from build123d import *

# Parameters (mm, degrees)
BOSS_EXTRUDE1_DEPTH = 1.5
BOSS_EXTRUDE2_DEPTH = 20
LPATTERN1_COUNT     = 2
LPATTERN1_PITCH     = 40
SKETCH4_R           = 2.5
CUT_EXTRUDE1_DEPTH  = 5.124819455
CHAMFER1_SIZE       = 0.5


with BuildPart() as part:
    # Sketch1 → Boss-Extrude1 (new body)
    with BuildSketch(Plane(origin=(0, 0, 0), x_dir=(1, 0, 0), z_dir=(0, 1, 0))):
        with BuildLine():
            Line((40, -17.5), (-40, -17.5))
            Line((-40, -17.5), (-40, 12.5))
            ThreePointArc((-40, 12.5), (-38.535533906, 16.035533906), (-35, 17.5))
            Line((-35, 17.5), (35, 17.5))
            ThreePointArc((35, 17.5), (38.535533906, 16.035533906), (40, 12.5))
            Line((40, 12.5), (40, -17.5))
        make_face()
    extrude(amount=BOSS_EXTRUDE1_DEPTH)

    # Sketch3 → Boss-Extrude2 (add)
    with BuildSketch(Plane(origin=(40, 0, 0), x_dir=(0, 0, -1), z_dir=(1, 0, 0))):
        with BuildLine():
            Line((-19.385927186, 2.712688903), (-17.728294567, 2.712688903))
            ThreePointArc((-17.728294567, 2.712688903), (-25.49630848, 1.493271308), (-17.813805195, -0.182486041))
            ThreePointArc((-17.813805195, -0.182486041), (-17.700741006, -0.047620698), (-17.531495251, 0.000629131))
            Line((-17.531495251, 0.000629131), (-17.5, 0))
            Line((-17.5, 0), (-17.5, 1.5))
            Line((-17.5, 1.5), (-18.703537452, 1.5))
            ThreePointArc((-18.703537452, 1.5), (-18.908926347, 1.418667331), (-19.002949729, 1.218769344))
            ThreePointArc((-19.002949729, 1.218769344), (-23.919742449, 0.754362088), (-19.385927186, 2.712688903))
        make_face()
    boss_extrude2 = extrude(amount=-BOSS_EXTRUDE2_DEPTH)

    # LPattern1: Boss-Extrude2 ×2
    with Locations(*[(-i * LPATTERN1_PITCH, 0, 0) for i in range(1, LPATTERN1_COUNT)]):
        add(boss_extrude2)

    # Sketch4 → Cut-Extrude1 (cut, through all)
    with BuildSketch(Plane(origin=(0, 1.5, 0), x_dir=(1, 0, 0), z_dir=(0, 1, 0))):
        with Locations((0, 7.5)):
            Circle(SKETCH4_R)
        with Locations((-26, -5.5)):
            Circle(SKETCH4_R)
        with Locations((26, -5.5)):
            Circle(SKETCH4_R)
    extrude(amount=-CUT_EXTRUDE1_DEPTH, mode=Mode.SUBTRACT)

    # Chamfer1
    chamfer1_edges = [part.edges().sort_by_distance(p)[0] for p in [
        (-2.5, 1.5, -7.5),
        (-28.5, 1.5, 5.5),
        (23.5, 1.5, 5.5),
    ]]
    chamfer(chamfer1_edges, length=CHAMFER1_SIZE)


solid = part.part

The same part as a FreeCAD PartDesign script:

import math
import FreeCAD as App
import Part
import Sketcher
Q = App.Units.Quantity


def edges_at(feature, points):
    """Names of the edges that pass closest to the given points."""
    edges = feature.Shape.Edges
    near = lambda p: min(range(len(edges)), key=lambda i: edges[i].distToShape(Part.Vertex(*p))[0])
    return sorted({f"Edge{near(p) + 1}" for p in points})

doc = App.newDocument("Part")
body = doc.addObject("PartDesign::Body", "Body")

# Sketch on XZ plane
sketch1 = doc.addObject("Sketcher::SketchObject", "Sketch")
body.addObject(sketch1)
sketch1.AttachmentSupport = (doc.XZ_Plane, [""])
sketch1.MapMode = "FlatFace"
sketch1.addGeometry([
    Part.LineSegment(App.Vector(-40, 18, 0), App.Vector(40, 18, 0)),  # 0
    Part.LineSegment(App.Vector(40, 18, 0), App.Vector(40, -12, 0)),  # 1
    Part.ArcOfCircle(Part.Circle(App.Vector(35, -12, 0), App.Vector(0, 0, 1), 5), math.radians(-90), math.radians(0)),  # 2
    Part.LineSegment(App.Vector(35, -18, 0), App.Vector(-35, -18, 0)),  # 3
    Part.ArcOfCircle(Part.Circle(App.Vector(-35, -12, 0), App.Vector(0, 0, 1), 5), math.radians(180), math.radians(270)),  # 4
    Part.LineSegment(App.Vector(-40, -12, 0), App.Vector(-40, 18, 0)),  # 5
], False)
sketch1.addConstraint([
    Sketcher.Constraint("Coincident", 0, 2, 1, 1),
    Sketcher.Constraint("Tangent", 1, 2, 2, 2),
    Sketcher.Constraint("Tangent", 2, 1, 3, 1),
    Sketcher.Constraint("Tangent", 3, 2, 4, 2),
    Sketcher.Constraint("Tangent", 4, 1, 5, 1),
    Sketcher.Constraint("Coincident", 5, 2, 0, 1),
    Sketcher.Constraint("Horizontal", 0),
    Sketcher.Constraint("Vertical", 1),
    Sketcher.Constraint("Horizontal", 3),
    Sketcher.Constraint("Vertical", 5),
    Sketcher.Constraint("Equal", 2, 4),
    Sketcher.Constraint("Radius", 2, Q("5 mm")),
    Sketcher.Constraint("DistanceX", 0, 1, 0, 2, Q("80 mm")),
    Sketcher.Constraint("DistanceY", 1, 2, 1, 1, Q("30 mm")),
    Sketcher.Constraint("DistanceX", -1, 1, 2, 3, Q("35 mm")),
    Sketcher.Constraint("DistanceY", 2, 3, -1, 1, Q("12.5 mm")),
])
pad1 = doc.addObject("PartDesign::Pad", "Pad")
body.addObject(pad1)
pad1.Profile = sketch1
pad1.Length = 1.5
pad1.Reversed = True

# Sketch on YZ plane
sketch2 = doc.addObject("Sketcher::SketchObject", "Sketch001")
body.addObject(sketch2)
sketch2.AttachmentSupport = (doc.YZ_Plane, [""])
sketch2.MapMode = "FlatFace"
sketch2.AttachmentOffset = App.Placement(App.Vector(0, 0, 40), App.Rotation())
sketch2.addGeometry([
    Part.LineSegment(App.Vector(2.713, 19.386, 0), App.Vector(2.713, 17.728, 0)),  # 0
    Part.ArcOfCircle(Part.Circle(App.Vector(1.375, 21.498, 0), App.Vector(0, 0, 1), 4), math.radians(-70), math.radians(247)),  # 1
    Part.ArcOfCircle(Part.Circle(App.Vector(-0.299, 17.537, 0), App.Vector(0, 0, 1), 0.3), math.radians(-1), math.radians(67)),  # 2
    Part.LineSegment(App.Vector(0.001, 17.531, 0), App.Vector(0, 17.5, 0)),  # 3
    Part.LineSegment(App.Vector(0, 17.5, 0), App.Vector(1.5, 17.5, 0)),  # 4
    Part.LineSegment(App.Vector(1.5, 17.5, 0), App.Vector(1.5, 18.704, 0)),  # 5
    Part.ArcOfCircle(Part.Circle(App.Vector(1.2, 18.704, 0), App.Vector(0, 0, 1), 0.3), math.radians(0), math.radians(86)),  # 6
    Part.ArcOfCircle(Part.Circle(App.Vector(1.375, 21.498, 0), App.Vector(0, 0, 1), 2.5), math.radians(-58), math.radians(266)),  # 7
], False)
sketch2.addConstraint([
    Sketcher.Constraint("Coincident", 0, 2, 1, 1),
    Sketcher.Constraint("Tangent", 1, 2, 2, 2),
    Sketcher.Constraint("Tangent", 2, 1, 3, 1),
    Sketcher.Constraint("Coincident", 3, 2, 4, 1),
    Sketcher.Constraint("Coincident", 4, 2, 5, 1),
    Sketcher.Constraint("Tangent", 5, 2, 6, 1),
    Sketcher.Constraint("Tangent", 6, 2, 7, 2),
    Sketcher.Constraint("Coincident", 7, 1, 0, 1),
    Sketcher.Constraint("Vertical", 0),
    Sketcher.Constraint("Horizontal", 4),
    Sketcher.Constraint("Vertical", 5),
    Sketcher.Constraint("Coincident", 7, 3, 1, 3),
    Sketcher.Constraint("Equal", 2, 6),
    Sketcher.Constraint("PointOnObject", 3, 2, -2),
    Sketcher.Constraint("Radius", 1, Q("4 mm")),
    Sketcher.Constraint("Radius", 2, Q("0.3 mm")),
    Sketcher.Constraint("Radius", 7, Q("2.5 mm")),
    Sketcher.Constraint("DistanceX", 4, 1, 4, 2, Q("1.5 mm")),
    Sketcher.Constraint("DistanceY", -1, 1, 3, 2, Q("17.5 mm")),
    Sketcher.Constraint("DistanceX", 2, 3, 0, 2, Q("3.012 mm")),
    Sketcher.Constraint("Distance", 3, Q("0.031502 mm")),
    Sketcher.Constraint("DistanceY", 2, 1, 0, 2, Q("0.196799 mm")),
    Sketcher.Constraint("DistanceY", 0, 2, 0, 1, Q("1.657633 mm")),
])
pad2 = doc.addObject("PartDesign::Pad", "Pad001")
body.addObject(pad2)
pad2.Profile = sketch2
pad2.Length = 20
pad2.Reversed = True
doc.recompute()

linearpattern = doc.addObject("PartDesign::LinearPattern", "LinearPattern")
body.addObject(linearpattern)
linearpattern.Originals = [pad2]
linearpattern.Direction = (doc.X_Axis, [""])
linearpattern.Mode = "offset"
linearpattern.Offset = 40
linearpattern.Occurrences = 2
linearpattern.Reversed = True
body.Tip = linearpattern

# Sketch on XZ plane
sketch3 = doc.addObject("Sketcher::SketchObject", "Sketch002")
body.addObject(sketch3)
sketch3.AttachmentSupport = (doc.XZ_Plane, [""])
sketch3.MapMode = "FlatFace"
sketch3.AttachmentOffset = App.Placement(App.Vector(0, 0, -1.5), App.Rotation())
sketch3.addGeometry([
    Part.Circle(App.Vector(0, -7.5, 0), App.Vector(0, 0, 1), 2.5),
    Part.Circle(App.Vector(-26, 5.5, 0), App.Vector(0, 0, 1), 2.5),
    Part.Circle(App.Vector(26, 5.5, 0), App.Vector(0, 0, 1), 2.5),
], False)
sketch3.addConstraint([
    Sketcher.Constraint("Equal", 0, 1),
    Sketcher.Constraint("Equal", 1, 2),
    Sketcher.Constraint("Symmetric", 1, 3, 2, 3, -2),
    Sketcher.Constraint("PointOnObject", 0, 3, -2),
    Sketcher.Constraint("Diameter", 0, Q("5 mm")),
    Sketcher.Constraint("DistanceX", 1, 3, -1, 1, Q("26 mm")),
    Sketcher.Constraint("DistanceY", 0, 3, 1, 3, Q("13 mm")),
    Sketcher.Constraint("DistanceY", 0, 3, -1, 1, Q("7.5 mm")),
])
pocket1 = doc.addObject("PartDesign::Pocket", "Pocket")
body.addObject(pocket1)
pocket1.Profile = sketch3
pocket1.Type = "ThroughAll"
pocket1.Reversed = True
doc.recompute()

chamfer = doc.addObject("PartDesign::Chamfer", "Chamfer")
body.addObject(chamfer)
chamfer.Base = (pocket1, edges_at(pocket1, [(-2.5, 1.5, -7.5), (-28.5, 1.5, 5.5), (23.5, 1.5, 5.5)]))
chamfer.Size = 0.5

doc.recompute()
